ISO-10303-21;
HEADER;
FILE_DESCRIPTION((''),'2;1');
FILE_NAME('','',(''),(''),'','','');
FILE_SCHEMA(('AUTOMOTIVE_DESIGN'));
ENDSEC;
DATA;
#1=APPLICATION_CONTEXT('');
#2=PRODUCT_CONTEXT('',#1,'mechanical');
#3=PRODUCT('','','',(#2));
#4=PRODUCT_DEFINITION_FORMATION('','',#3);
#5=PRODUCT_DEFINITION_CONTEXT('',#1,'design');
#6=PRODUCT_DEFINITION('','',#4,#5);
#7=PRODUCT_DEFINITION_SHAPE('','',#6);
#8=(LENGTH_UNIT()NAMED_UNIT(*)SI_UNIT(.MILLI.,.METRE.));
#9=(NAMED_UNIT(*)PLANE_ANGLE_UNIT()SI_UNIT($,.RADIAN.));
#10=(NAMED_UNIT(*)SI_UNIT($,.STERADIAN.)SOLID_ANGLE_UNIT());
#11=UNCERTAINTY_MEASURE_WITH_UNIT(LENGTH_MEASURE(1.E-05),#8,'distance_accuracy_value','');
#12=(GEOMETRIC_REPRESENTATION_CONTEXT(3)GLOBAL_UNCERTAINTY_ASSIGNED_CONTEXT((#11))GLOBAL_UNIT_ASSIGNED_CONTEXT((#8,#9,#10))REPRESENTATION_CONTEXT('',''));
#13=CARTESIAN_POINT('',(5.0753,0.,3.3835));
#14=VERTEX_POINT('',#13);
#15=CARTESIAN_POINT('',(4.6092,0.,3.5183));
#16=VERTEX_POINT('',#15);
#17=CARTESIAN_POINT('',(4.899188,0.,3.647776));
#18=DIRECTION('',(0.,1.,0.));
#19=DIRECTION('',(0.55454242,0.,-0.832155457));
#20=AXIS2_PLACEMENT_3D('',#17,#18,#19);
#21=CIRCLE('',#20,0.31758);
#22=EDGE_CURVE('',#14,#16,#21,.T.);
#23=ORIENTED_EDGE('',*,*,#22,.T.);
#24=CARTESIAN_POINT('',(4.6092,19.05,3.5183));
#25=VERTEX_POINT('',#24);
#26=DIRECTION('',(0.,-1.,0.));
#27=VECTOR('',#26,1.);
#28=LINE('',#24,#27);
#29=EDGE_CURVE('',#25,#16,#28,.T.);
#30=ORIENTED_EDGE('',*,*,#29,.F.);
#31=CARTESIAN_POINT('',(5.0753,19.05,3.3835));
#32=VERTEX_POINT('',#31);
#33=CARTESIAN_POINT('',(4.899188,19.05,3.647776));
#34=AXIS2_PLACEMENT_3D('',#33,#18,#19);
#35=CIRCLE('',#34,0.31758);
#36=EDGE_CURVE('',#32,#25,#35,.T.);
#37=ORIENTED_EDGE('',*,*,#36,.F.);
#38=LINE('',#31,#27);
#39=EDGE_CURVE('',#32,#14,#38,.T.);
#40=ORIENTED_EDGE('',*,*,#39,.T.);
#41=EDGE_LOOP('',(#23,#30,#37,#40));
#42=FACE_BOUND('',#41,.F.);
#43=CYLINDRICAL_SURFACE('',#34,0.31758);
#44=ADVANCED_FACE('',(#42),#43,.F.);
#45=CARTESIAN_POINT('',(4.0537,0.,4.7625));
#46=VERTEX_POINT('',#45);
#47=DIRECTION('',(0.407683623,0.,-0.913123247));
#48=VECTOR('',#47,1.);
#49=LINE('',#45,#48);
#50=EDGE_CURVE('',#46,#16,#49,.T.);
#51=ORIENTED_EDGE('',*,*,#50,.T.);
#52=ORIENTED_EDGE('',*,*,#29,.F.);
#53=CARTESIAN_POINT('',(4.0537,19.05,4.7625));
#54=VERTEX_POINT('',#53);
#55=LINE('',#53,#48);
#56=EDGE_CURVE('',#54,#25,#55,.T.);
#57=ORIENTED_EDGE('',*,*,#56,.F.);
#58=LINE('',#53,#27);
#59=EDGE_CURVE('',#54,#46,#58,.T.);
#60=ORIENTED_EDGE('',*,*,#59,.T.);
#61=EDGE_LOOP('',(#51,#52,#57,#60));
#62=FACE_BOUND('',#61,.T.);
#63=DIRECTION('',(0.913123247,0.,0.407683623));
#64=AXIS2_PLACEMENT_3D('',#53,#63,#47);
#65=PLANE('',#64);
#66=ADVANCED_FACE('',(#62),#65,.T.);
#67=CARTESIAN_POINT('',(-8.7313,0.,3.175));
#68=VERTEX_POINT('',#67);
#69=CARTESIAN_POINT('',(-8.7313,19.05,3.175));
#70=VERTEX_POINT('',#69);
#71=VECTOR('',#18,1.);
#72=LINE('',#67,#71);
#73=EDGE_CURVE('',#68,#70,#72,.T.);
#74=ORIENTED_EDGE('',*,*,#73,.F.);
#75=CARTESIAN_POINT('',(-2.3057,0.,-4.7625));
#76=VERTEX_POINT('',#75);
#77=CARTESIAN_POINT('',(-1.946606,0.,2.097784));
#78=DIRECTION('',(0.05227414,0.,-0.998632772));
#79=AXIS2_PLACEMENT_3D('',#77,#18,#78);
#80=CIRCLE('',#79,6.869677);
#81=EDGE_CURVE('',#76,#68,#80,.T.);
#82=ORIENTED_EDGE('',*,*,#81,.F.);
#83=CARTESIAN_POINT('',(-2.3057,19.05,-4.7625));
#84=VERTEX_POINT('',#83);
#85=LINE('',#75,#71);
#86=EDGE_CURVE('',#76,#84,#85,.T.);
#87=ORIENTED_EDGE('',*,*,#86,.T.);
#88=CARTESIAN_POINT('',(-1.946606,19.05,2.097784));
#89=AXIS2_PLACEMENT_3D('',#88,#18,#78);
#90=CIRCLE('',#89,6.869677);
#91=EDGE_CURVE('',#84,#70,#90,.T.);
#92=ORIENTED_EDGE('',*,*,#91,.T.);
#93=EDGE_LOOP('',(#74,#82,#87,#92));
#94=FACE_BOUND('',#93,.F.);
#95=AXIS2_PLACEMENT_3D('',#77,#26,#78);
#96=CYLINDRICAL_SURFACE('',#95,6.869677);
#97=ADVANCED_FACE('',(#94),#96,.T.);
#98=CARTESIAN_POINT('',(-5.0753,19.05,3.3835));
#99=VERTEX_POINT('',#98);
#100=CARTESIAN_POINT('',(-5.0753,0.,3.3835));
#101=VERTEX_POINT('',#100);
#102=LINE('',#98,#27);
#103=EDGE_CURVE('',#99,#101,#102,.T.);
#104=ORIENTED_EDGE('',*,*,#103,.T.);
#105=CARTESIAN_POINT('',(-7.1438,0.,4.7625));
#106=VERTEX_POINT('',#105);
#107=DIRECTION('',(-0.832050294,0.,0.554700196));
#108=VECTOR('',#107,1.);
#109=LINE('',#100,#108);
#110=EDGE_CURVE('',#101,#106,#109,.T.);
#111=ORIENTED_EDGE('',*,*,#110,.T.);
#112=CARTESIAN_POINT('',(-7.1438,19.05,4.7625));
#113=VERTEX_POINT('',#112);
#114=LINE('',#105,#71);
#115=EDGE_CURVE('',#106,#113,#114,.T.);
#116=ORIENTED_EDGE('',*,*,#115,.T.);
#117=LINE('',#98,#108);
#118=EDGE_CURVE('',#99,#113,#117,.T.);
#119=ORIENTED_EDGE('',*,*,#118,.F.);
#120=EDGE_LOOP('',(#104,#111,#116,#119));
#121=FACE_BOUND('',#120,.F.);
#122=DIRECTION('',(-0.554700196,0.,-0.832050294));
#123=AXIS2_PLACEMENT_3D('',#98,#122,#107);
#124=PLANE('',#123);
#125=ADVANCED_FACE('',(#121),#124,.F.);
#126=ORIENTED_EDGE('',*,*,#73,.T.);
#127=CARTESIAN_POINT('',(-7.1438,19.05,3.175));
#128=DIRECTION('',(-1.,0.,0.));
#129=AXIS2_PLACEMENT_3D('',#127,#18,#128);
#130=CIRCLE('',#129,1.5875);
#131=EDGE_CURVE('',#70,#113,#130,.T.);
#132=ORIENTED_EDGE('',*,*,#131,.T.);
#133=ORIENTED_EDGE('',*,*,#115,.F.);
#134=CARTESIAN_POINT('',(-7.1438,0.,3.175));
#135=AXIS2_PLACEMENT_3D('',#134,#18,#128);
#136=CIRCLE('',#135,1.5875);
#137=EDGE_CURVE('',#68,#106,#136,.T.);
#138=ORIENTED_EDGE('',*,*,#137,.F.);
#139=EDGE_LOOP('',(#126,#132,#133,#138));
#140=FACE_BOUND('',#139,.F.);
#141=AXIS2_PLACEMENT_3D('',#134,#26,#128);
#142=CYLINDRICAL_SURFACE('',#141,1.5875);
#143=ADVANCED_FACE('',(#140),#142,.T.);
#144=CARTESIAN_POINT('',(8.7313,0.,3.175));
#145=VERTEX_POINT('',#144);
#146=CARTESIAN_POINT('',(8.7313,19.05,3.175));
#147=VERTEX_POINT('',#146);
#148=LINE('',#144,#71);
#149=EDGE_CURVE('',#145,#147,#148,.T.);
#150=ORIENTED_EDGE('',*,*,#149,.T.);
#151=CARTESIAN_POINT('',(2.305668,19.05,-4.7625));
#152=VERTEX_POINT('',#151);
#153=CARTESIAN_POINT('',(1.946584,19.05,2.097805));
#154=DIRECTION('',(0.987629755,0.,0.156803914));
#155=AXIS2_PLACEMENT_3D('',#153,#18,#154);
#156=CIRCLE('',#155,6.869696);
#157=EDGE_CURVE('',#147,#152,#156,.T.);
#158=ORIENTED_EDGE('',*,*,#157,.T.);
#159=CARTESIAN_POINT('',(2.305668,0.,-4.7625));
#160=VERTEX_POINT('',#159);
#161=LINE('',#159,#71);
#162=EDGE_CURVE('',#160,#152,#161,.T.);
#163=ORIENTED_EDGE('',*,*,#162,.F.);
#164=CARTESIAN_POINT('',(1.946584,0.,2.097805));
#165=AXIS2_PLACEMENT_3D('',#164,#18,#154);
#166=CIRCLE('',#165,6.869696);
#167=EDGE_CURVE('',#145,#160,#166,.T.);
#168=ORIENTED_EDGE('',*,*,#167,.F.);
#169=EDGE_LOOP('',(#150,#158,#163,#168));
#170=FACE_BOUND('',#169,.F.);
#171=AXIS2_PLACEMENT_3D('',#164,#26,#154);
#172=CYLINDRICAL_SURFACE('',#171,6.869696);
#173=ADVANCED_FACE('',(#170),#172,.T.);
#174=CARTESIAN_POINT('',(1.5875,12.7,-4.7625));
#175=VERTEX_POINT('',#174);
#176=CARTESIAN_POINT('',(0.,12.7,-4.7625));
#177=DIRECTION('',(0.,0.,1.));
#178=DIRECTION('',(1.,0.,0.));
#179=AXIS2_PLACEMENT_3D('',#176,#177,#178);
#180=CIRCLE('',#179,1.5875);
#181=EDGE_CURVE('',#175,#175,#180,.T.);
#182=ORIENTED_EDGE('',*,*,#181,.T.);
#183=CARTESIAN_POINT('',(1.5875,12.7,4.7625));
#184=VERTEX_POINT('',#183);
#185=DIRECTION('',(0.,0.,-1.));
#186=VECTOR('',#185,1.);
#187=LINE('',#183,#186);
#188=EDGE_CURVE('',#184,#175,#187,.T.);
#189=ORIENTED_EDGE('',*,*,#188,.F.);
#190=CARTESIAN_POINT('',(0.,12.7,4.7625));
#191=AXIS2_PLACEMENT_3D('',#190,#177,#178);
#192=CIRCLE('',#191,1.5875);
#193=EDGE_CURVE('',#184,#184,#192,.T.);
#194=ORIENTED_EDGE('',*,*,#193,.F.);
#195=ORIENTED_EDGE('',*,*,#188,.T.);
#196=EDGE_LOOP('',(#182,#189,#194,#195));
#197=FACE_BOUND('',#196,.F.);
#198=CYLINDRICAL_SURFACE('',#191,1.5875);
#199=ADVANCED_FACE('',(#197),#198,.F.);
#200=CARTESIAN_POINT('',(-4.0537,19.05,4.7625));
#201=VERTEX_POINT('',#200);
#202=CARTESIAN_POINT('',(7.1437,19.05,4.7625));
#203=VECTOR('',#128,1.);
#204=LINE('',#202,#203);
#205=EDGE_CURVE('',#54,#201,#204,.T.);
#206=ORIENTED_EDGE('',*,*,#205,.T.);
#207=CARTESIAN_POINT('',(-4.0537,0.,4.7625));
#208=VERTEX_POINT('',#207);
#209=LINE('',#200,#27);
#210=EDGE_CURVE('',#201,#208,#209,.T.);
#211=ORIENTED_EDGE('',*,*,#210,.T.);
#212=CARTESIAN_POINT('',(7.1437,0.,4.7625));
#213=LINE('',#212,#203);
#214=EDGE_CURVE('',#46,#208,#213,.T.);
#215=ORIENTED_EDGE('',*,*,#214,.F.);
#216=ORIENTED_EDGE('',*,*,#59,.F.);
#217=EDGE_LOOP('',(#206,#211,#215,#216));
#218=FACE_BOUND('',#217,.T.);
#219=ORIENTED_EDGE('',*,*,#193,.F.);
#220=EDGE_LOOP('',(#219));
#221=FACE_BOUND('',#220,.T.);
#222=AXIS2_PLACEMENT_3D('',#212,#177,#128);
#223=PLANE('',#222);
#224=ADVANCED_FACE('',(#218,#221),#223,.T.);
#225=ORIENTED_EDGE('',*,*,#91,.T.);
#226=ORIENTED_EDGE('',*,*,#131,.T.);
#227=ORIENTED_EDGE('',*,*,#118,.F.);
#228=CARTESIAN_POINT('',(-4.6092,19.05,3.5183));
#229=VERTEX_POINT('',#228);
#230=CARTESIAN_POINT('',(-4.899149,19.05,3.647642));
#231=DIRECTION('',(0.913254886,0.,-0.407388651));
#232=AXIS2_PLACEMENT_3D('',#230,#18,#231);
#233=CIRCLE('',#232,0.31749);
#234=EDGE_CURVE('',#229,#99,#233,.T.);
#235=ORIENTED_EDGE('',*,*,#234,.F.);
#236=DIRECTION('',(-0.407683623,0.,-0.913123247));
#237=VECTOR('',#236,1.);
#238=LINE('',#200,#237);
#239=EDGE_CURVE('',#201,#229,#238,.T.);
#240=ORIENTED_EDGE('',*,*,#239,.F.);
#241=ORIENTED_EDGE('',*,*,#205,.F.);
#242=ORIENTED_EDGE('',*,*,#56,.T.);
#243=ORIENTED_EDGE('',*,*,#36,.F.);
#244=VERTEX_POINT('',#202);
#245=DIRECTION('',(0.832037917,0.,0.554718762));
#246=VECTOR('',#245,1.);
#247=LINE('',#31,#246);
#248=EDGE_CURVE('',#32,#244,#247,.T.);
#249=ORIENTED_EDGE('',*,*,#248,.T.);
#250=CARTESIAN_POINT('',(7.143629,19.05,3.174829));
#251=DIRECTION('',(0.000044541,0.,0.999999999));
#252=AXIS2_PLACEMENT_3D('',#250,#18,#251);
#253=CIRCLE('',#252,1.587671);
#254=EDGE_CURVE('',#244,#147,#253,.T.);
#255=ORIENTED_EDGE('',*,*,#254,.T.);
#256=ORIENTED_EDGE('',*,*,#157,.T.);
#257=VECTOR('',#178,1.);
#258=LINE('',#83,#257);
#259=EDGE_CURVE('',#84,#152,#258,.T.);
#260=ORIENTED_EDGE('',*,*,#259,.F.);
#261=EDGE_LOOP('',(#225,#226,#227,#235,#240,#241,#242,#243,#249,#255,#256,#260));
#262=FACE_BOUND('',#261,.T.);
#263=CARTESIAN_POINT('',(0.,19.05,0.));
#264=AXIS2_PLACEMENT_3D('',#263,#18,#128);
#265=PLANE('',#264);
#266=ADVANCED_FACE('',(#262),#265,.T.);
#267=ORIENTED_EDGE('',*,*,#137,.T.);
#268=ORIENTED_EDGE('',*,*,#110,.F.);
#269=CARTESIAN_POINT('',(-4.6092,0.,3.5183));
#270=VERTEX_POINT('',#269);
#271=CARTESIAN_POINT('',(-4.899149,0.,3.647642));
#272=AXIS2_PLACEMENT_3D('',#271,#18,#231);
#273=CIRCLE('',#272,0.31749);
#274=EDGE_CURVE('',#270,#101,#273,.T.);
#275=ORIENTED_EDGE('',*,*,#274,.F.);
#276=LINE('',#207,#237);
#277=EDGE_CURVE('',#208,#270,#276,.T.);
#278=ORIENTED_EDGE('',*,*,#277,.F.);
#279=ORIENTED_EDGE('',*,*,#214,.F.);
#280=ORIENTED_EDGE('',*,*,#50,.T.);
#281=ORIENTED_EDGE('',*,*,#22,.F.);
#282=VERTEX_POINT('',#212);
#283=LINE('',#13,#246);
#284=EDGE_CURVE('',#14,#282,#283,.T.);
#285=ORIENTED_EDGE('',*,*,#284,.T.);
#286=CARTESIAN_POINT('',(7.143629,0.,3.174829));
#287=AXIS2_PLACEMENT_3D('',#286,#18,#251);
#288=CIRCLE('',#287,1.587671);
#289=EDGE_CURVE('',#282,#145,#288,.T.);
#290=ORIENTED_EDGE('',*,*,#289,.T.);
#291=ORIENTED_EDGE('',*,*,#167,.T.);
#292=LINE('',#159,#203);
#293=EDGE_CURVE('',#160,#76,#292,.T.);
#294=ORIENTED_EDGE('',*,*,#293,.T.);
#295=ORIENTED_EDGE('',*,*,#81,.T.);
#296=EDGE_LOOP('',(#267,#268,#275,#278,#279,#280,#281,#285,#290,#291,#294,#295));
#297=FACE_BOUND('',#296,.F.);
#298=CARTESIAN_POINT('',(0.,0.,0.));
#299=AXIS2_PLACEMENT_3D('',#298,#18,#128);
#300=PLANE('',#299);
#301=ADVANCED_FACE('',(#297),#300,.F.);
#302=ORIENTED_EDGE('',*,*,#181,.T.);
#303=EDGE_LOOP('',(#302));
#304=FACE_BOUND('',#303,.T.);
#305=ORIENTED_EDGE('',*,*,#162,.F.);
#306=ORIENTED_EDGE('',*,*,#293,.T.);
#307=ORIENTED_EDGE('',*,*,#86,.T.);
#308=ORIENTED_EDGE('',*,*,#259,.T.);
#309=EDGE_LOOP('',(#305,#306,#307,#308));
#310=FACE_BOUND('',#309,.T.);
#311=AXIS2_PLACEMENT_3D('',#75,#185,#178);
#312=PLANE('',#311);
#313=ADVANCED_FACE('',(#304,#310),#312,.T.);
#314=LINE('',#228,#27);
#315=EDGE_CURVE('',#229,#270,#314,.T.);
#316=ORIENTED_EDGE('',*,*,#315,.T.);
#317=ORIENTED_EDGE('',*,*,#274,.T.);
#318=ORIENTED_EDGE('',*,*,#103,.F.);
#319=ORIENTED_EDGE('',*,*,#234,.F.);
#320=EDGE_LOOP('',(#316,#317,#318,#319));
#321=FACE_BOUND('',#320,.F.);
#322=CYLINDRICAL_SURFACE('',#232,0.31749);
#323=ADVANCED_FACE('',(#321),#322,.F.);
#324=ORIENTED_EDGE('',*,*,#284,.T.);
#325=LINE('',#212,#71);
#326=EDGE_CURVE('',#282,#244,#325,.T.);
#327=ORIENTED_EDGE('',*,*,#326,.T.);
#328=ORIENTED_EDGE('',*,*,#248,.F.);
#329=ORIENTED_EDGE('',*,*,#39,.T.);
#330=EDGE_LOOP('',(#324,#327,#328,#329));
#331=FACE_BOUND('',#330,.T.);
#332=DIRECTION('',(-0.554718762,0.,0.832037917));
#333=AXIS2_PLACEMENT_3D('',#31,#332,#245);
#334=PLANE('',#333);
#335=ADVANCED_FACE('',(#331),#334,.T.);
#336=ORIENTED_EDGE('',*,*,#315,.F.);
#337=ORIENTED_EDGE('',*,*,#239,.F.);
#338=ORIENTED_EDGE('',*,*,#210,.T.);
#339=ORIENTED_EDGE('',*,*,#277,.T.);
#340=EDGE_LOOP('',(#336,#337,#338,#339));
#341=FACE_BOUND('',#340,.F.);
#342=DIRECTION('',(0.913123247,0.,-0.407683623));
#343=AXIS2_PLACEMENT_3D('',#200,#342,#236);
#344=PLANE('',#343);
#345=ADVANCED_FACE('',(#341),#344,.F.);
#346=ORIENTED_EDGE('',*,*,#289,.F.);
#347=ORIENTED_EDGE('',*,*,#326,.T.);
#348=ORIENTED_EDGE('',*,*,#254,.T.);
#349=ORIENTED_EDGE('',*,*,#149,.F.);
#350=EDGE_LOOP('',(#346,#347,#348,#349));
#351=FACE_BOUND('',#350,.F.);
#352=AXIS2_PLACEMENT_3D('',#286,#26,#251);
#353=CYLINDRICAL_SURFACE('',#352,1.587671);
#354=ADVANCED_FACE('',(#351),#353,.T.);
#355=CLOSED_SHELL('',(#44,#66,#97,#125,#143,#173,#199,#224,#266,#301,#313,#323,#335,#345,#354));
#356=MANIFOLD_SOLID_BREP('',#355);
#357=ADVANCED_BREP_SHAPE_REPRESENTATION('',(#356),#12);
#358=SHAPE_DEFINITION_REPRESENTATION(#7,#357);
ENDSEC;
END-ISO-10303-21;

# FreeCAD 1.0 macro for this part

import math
import FreeCAD as App
import Part
import Sketcher
from FreeCAD import Vector
Q = App.Units.Quantity

doc = App.newDocument("Part")
body = doc.addObject("PartDesign::Body", "Body")

sketch1 = body.newObject("Sketcher::SketchObject", "Sketch")
sketch1.AttachmentSupport = (doc.getObject("XZ_Plane"), [""])
sketch1.MapMode = "FlatFace"
sketch1.addGeometry([
    Part.LineSegment(Vector(2.3, -4.8, 0), Vector(-2.3, -4.8, 0)),
    Part.ArcOfCircle(Part.Circle(Vector(-1.9, 2.1, 0), Vector(0, 0, 1), 6.9), math.radians(171), math.radians(267)),
    Part.ArcOfCircle(Part.Circle(Vector(-7.1, 3.2, 0), Vector(0, 0, 1), 1.6), math.radians(90), math.radians(180)),
    Part.LineSegment(Vector(-7.1, 4.8, 0), Vector(7.1, 4.8, 0)),
    Part.ArcOfCircle(Part.Circle(Vector(7.1, 3.2, 0), Vector(0, 0, 1), 1.6), math.radians(0), math.radians(90)),
    Part.ArcOfCircle(Part.Circle(Vector(1.9, 2.1, 0), Vector(0, 0, 1), 6.9), math.radians(-87), math.radians(9)),
], False)
sketch1.addConstraint([
    Sketcher.Constraint("Coincident", 0, 2, 1, 2),
    Sketcher.Constraint("Coincident", 1, 1, 2, 2),
    Sketcher.Constraint("Tangent", 2, 1, 3, 1),
    Sketcher.Constraint("Tangent", 3, 2, 4, 2),
    Sketcher.Constraint("Coincident", 4, 1, 5, 2),
    Sketcher.Constraint("Coincident", 5, 1, 0, 1),
    Sketcher.Constraint("Horizontal", 0),
    Sketcher.Constraint("Horizontal", 3),
    Sketcher.Constraint("Equal", 2, 4),
    Sketcher.Constraint("Equal", 1, 5),
    Sketcher.Constraint("Symmetric", 1, 3, 5, 3, -2),
    Sketcher.Constraint("Horizontal", 4, 3, 1, 1),
    Sketcher.Constraint("Horizontal", 1, 1, 4, 1),
    Sketcher.Constraint("Radius", 2, Q("0.0625 in")),
    Sketcher.Constraint("DistanceY", 0, 2, 2, 1, Q("0.375 in")),
    Sketcher.Constraint("DistanceX", 3, 1, 3, 2, Q("0.5625 in")),
    Sketcher.Constraint("Radius", 1, 6.8697),
    Sketcher.Constraint("DistanceY", -1, 1, 2, 3, Q("0.125 in")),
    Sketcher.Constraint("DistanceX", 0, 2, 0, 1, 4.6114),
])
pad1 = body.newObject("PartDesign::Pad", "Pad")
pad1.Profile = sketch1
pad1.Length = Q("0.75 in")
pad1.Reversed = True

sketch2 = body.newObject("Sketcher::SketchObject", "Sketch001")
sketch2.AttachmentSupport = (doc.getObject("XZ_Plane"), [""])
sketch2.MapMode = "FlatFace"
sketch2.AttachmentOffset = App.Placement(Vector(0, 0, -0.75 * 25.4), App.Rotation())
sketch2.addGeometry([
    Part.LineSegment(Vector(-5.08, 3.38, 0), Vector(-7.14, 4.76, 0)),
    Part.LineSegment(Vector(-7.14, 4.76, 0), Vector(-4.05, 4.76, 0)),
    Part.LineSegment(Vector(-4.05, 4.76, 0), Vector(-4.61, 3.52, 0)),
    Part.ArcOfCircle(Part.Circle(Vector(-4.9, 3.65, 0), Vector(0, 0, 1), 0.32), math.radians(-124), math.radians(-24)),
    Part.LineSegment(Vector(4.61, 3.52, 0), Vector(4.05, 4.76, 0)),
    Part.LineSegment(Vector(4.05, 4.76, 0), Vector(7.14, 4.76, 0)),
    Part.LineSegment(Vector(7.14, 4.76, 0), Vector(5.08, 3.38, 0)),
    Part.ArcOfCircle(Part.Circle(Vector(4.9, 3.65, 0), Vector(0, 0, 1), 0.32), math.radians(-156), math.radians(-56)),
], False)
sketch2.addConstraint([
    Sketcher.Constraint("Coincident", 0, 2, 1, 1),
    Sketcher.Constraint("Coincident", 1, 2, 2, 1),
    Sketcher.Constraint("Tangent", 2, 2, 3, 2),
    Sketcher.Constraint("Tangent", 3, 1, 0, 1),
    Sketcher.Constraint("Coincident", 4, 2, 5, 1),
    Sketcher.Constraint("Coincident", 5, 2, 6, 1),
    Sketcher.Constraint("Tangent", 6, 2, 7, 2),
    Sketcher.Constraint("Tangent", 7, 1, 4, 1),
    Sketcher.Constraint("Horizontal", 1),
    Sketcher.Constraint("Horizontal", 5),
    Sketcher.Constraint("Equal", 3, 7),
    Sketcher.Constraint("Symmetric", 3, 3, 7, 3, -2),
    Sketcher.Constraint("Symmetric", 1, 2, 4, 2, -2),
    Sketcher.Constraint("Horizontal", 3, 1, 6, 2),
    Sketcher.Constraint("Radius", 3, Q("0.0125 in")),
    Sketcher.Constraint("DistanceY", -1, 1, 0, 2, Q("0.1875 in")),
    Sketcher.Constraint("Angle", 0, Q("146.31 deg")),
    Sketcher.Constraint("Angle", 2, Q("-114.0594 deg")),
    Sketcher.Constraint("DistanceX", 0, 2, -1, 1, Q("0.281252 in")),
    Sketcher.Constraint("DistanceX", 1, 1, 1, 2, 3.09),
])
pocket1 = body.newObject("PartDesign::Pocket", "Pocket")
pocket1.Profile = sketch2
pocket1.Length = Q("0.75 in")
pocket1.Reversed = True

sketch3 = body.newObject("Sketcher::SketchObject", "Sketch002")
sketch3.AttachmentSupport = (doc.getObject("XY_Plane"), [""])
sketch3.MapMode = "FlatFace"
sketch3.AttachmentOffset = App.Placement(Vector(0, 0, 0.1875 * 25.4), App.Rotation())
sketch3.addGeometry(Part.Circle(Vector(0, 12.7, 0), Vector(0, 0, 1), 1.6), False)
sketch3.addConstraint([
    Sketcher.Constraint("PointOnObject", 0, 3, -2),
    Sketcher.Constraint("Diameter", 0, Q("0.125 in")),
    Sketcher.Constraint("DistanceY", -1, 1, 0, 3, Q("0.5 in")),
])
pocket2 = body.newObject("PartDesign::Pocket", "Pocket001")
pocket2.Profile = sketch3
pocket2.Length = Q("0.75 in")

doc.recompute()
